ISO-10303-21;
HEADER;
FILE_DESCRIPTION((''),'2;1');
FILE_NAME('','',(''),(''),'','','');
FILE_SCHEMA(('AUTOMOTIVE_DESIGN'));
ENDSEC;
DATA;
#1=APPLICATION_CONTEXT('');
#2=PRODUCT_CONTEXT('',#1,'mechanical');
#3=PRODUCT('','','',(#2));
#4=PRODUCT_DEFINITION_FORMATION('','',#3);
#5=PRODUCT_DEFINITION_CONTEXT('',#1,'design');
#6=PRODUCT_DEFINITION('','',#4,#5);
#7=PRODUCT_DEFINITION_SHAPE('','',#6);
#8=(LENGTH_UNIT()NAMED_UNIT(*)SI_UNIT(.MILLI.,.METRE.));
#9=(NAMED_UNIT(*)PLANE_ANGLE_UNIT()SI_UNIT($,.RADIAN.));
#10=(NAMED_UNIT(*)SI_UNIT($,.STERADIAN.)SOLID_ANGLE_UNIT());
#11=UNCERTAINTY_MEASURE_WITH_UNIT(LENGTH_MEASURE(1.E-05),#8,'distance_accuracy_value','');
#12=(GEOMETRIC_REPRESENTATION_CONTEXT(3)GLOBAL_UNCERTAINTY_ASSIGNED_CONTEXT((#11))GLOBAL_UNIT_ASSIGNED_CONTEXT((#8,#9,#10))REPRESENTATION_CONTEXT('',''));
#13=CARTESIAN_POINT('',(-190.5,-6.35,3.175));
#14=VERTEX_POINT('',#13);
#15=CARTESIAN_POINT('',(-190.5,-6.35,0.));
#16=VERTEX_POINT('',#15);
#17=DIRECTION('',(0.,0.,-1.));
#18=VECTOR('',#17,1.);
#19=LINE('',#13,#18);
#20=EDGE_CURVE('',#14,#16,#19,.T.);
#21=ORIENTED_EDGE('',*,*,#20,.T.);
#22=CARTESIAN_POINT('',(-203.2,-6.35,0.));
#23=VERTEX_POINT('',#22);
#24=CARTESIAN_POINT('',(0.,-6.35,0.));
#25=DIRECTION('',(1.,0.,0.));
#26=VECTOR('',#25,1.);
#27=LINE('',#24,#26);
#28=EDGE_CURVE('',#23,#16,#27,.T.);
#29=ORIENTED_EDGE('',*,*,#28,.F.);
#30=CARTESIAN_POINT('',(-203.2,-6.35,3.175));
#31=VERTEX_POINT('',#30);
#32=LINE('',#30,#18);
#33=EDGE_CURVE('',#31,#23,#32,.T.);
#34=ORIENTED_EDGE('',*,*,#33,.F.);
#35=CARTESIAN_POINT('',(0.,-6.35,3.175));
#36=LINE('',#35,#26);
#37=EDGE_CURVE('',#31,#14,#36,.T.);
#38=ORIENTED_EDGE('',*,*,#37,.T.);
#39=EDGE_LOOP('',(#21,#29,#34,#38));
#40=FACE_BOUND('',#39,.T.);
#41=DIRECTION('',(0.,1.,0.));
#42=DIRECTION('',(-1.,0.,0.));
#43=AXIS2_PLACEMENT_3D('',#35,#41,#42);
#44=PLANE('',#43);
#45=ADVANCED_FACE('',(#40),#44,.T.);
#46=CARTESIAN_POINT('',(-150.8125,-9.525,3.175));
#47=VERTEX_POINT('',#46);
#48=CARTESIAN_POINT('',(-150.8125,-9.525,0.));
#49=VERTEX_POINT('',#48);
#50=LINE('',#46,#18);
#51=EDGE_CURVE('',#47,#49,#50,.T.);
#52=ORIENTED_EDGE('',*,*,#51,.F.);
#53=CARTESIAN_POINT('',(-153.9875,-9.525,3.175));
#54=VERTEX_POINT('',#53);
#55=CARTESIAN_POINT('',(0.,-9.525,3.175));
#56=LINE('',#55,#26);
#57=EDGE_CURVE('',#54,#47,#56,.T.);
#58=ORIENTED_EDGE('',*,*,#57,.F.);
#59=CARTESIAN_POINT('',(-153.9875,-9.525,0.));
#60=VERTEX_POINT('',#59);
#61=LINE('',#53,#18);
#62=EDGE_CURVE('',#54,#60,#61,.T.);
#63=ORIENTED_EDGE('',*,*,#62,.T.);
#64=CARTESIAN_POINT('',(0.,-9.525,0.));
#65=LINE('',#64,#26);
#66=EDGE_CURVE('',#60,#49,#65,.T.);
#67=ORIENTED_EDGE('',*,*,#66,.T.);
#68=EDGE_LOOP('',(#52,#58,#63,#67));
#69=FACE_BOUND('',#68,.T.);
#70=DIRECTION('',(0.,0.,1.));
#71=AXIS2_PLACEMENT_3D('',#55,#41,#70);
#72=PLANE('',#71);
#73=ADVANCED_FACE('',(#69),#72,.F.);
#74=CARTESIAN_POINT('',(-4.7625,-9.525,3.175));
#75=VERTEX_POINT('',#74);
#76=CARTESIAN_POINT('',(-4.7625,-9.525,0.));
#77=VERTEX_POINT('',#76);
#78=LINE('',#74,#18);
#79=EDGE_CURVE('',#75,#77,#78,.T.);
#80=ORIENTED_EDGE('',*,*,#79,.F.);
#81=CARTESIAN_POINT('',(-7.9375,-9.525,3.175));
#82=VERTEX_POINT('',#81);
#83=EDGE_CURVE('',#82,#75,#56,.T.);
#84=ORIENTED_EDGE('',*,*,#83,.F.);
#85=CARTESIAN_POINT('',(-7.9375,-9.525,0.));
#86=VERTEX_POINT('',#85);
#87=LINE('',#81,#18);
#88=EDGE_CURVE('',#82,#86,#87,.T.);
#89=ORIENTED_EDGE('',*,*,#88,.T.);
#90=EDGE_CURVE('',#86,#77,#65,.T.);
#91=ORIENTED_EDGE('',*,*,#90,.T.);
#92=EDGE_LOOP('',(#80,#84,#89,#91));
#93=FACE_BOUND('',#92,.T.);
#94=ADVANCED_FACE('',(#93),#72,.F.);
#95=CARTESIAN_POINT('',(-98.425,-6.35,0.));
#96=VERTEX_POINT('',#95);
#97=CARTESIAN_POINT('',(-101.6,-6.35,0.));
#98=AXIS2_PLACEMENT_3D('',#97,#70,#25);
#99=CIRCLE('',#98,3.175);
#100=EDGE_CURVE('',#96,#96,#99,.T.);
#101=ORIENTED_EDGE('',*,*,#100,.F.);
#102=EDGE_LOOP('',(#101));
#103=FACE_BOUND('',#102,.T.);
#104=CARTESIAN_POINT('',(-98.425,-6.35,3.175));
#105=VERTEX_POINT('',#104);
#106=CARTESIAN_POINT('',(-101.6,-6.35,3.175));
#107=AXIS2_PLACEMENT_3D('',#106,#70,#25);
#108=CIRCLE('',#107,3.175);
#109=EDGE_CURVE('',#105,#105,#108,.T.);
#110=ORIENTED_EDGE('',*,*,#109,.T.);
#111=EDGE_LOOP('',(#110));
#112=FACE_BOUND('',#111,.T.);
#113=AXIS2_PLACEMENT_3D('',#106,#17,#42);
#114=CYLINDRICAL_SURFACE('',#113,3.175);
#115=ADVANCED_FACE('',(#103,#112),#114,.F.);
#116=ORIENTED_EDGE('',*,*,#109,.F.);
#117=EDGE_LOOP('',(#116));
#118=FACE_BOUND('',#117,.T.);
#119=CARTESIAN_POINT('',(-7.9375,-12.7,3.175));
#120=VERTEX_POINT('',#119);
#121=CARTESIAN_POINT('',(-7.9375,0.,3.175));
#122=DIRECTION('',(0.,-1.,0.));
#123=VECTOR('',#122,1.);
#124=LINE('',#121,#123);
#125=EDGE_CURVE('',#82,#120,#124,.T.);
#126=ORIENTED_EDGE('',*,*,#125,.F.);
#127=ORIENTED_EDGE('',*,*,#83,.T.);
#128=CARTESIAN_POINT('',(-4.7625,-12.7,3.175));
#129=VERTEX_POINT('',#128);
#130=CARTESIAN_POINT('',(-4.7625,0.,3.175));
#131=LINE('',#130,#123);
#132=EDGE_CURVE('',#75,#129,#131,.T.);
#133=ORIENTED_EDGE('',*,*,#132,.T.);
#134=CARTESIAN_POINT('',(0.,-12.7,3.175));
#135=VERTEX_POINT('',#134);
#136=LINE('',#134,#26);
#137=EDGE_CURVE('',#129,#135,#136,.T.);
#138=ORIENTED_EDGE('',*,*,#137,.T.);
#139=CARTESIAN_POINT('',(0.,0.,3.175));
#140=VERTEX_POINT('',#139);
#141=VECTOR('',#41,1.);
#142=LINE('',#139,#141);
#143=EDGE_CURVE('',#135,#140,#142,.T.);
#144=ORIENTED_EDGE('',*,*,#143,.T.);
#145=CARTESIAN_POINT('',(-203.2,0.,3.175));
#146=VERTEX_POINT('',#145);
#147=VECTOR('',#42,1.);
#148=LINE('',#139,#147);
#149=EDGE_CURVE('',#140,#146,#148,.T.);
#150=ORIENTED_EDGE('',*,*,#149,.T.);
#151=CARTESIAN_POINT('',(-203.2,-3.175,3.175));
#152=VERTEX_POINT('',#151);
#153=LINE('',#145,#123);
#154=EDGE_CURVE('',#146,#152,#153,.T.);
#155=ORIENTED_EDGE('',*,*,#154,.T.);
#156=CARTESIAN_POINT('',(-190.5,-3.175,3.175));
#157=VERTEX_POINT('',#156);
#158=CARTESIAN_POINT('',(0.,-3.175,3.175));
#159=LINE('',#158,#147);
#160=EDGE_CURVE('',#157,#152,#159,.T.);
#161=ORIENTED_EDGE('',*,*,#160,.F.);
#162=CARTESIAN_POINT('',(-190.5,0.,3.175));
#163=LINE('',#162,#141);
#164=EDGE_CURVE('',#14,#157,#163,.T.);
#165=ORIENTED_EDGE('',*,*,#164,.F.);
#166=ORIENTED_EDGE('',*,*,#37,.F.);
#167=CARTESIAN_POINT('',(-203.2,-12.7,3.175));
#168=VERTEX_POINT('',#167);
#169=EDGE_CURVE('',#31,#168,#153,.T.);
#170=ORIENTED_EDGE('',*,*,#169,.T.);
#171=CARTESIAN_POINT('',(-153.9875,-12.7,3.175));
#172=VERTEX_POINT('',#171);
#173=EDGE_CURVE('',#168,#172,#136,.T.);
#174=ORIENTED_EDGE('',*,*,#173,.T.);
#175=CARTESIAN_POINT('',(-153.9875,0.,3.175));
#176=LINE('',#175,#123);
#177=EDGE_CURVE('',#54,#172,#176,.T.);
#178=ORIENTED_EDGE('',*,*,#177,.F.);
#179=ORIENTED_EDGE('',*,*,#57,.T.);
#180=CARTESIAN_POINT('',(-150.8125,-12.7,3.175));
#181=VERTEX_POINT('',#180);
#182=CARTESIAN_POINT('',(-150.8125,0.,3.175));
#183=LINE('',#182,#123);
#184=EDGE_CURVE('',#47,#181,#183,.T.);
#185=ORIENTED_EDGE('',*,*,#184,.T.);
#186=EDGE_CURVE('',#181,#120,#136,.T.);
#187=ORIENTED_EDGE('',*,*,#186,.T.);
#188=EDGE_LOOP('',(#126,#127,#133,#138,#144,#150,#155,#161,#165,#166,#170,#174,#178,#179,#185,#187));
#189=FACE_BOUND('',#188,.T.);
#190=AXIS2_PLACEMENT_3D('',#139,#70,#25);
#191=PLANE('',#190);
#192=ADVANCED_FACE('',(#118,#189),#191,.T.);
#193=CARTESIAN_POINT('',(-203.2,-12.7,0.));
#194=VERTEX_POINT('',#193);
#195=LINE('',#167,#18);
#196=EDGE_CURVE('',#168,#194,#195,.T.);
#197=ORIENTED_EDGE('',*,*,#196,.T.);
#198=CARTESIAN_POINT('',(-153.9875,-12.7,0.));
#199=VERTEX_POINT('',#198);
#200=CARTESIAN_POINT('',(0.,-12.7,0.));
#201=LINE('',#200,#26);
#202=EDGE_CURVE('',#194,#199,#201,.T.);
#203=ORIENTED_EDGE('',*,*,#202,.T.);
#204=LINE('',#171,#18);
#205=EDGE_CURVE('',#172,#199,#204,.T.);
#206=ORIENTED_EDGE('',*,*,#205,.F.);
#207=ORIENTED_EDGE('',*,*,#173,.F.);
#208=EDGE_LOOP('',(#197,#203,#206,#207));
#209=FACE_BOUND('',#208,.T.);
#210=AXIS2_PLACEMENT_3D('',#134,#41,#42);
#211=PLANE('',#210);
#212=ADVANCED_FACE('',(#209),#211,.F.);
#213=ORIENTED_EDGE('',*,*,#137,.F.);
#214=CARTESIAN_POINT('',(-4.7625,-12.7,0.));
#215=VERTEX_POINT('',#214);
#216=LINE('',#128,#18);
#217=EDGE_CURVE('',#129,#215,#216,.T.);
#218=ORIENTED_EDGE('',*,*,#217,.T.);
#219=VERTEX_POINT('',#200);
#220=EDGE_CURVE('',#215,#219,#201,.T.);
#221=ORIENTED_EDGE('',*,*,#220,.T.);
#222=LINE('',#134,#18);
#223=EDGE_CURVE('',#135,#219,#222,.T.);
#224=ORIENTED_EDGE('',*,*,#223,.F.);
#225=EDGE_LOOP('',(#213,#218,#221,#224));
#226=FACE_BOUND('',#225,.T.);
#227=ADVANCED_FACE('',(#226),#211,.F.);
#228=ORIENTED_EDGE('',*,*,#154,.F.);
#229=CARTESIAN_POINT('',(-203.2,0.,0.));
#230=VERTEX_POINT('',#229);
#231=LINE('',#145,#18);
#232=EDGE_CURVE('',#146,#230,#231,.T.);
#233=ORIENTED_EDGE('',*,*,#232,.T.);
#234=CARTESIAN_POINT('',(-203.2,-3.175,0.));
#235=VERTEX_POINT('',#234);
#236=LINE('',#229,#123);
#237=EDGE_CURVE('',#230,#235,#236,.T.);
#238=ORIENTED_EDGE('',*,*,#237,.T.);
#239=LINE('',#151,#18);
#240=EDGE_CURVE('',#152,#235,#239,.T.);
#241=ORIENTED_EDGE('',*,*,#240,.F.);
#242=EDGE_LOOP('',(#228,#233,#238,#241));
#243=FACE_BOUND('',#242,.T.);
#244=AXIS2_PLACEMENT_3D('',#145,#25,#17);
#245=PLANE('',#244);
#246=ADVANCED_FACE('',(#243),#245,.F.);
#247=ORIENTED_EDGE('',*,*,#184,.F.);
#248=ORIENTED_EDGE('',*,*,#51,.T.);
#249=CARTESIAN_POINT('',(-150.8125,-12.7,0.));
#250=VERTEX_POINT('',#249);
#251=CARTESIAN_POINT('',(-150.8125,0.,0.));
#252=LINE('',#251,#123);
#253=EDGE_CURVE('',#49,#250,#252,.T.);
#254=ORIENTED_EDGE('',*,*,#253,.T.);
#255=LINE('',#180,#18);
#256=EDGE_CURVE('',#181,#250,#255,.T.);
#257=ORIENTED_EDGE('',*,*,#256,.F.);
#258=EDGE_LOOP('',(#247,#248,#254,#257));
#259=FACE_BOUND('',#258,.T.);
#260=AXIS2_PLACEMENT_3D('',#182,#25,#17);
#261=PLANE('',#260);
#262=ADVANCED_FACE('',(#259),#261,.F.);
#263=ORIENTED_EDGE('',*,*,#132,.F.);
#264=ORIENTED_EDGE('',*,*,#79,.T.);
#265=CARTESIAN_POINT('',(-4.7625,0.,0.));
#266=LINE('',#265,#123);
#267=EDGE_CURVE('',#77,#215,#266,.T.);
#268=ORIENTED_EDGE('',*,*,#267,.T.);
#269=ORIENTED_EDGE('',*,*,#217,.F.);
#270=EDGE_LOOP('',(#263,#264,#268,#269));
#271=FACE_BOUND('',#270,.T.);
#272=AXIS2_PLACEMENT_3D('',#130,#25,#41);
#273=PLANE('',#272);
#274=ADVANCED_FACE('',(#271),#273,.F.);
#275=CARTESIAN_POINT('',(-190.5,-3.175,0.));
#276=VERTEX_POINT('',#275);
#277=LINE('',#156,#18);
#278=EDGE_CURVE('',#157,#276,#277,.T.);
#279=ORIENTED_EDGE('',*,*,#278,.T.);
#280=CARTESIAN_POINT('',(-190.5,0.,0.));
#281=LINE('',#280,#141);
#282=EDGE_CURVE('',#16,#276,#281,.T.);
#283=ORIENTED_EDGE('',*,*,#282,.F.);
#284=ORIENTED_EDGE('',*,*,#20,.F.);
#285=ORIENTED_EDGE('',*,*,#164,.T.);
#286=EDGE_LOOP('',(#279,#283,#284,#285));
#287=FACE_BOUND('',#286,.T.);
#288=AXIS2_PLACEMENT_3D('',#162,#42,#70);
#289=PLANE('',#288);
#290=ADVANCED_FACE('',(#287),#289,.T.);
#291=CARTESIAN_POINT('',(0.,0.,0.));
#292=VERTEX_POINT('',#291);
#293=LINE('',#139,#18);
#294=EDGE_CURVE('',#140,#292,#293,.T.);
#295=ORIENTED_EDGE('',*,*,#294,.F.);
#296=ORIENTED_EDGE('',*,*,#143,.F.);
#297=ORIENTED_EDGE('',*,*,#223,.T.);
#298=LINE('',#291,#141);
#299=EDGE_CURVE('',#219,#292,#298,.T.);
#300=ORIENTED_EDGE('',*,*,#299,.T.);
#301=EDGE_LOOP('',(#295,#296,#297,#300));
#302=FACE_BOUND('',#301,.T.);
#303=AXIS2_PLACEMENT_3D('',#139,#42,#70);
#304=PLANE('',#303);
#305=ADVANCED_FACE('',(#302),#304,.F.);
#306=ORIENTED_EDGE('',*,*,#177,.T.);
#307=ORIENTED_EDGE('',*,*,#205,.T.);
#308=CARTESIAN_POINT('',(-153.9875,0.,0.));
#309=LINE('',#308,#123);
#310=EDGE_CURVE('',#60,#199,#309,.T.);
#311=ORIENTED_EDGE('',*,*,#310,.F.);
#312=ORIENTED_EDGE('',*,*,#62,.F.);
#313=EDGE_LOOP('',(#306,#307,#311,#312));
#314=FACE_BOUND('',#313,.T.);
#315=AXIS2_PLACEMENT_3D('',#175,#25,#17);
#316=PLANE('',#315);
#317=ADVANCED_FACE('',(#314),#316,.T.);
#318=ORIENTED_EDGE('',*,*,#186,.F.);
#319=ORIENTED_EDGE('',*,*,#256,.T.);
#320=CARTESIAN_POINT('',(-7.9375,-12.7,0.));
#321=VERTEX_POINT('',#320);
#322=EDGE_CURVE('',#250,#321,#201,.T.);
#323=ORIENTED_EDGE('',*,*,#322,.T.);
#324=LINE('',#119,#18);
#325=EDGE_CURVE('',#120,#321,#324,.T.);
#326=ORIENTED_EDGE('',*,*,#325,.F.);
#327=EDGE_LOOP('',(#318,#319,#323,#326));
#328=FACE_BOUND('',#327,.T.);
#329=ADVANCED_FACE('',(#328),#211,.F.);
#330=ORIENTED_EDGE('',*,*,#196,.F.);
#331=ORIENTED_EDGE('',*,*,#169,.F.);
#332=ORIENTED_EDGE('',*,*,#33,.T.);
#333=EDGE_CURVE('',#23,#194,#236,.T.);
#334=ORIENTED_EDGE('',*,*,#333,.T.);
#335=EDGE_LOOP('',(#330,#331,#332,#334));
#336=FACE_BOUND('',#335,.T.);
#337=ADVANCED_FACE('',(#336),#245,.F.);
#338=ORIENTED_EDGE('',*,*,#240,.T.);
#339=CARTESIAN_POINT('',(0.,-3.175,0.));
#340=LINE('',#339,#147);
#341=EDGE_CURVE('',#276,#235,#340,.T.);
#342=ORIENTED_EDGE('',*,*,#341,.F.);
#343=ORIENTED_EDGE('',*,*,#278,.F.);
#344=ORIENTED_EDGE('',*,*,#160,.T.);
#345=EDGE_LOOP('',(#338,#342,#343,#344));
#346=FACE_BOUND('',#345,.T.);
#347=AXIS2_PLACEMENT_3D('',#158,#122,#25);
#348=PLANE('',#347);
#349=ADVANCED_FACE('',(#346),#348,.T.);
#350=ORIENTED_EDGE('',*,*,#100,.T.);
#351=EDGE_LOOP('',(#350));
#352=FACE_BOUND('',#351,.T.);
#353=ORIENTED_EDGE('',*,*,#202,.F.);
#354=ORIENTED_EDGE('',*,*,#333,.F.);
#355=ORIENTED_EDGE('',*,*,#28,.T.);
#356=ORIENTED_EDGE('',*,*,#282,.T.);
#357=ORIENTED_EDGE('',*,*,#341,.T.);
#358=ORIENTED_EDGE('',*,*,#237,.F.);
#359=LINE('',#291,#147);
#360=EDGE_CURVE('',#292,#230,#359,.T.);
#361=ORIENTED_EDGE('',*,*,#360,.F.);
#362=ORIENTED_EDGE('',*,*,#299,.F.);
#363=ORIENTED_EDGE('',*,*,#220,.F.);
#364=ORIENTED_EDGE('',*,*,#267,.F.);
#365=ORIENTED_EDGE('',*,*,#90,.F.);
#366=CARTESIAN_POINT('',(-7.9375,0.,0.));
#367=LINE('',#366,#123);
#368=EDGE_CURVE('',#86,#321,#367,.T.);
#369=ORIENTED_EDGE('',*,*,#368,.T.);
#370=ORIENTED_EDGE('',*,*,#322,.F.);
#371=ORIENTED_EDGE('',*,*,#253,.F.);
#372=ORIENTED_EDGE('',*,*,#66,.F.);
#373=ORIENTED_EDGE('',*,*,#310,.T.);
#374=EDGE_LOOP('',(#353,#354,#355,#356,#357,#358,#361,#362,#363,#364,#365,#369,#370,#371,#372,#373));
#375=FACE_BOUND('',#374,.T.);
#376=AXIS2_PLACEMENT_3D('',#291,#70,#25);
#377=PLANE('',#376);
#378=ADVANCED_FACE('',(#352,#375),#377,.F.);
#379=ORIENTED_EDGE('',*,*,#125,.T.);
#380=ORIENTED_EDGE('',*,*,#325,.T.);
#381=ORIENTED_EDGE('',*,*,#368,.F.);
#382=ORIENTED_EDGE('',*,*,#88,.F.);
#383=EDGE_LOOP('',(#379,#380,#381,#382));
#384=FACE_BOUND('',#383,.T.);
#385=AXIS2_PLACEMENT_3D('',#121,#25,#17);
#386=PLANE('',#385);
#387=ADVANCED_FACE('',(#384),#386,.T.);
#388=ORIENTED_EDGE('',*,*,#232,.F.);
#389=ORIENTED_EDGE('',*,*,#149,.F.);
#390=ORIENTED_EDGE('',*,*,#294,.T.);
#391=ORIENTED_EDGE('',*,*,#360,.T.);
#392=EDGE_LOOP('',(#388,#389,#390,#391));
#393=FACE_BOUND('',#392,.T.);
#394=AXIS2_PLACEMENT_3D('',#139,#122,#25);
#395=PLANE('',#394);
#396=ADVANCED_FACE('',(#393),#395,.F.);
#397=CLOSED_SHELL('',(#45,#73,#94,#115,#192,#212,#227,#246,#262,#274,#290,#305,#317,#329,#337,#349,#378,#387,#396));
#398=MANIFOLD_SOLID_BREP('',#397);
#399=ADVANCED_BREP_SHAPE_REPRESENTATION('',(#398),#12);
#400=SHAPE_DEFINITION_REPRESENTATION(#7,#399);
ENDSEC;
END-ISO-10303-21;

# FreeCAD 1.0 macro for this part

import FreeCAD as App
import Part
import Sketcher
from FreeCAD import Vector
Q = App.Units.Quantity


def add_polygon(sketch, points):
    """Adds a closed chain of lines whose ends are joined by coincident constraints."""
    first, n = sketch.GeometryCount, len(points)
    for a, b in zip(points, points[1:] + points[:1]):
        sketch.addGeometry(Part.LineSegment(App.Vector(*a, 0), App.Vector(*b, 0)), False)
    for i in range(n):
        sketch.addConstraint(Sketcher.Constraint("Coincident", first + i, 2, first + (i + 1) % n, 1))

doc = App.newDocument("Part")
body = doc.addObject("PartDesign::Body", "Body")

# Sketch on XY plane
sketch1 = body.newObject("Sketcher::SketchObject", "Sketch")
sketch1.AttachmentSupport = (doc.getObject("XY_Plane"), [""])
sketch1.MapMode = "FlatFace"
add_polygon(sketch1, [(0, -12.7), (0, 0), (-203.2, 0), (-203.2, -3.2), (-190.5, -3.2), (-190.5, -6.3), (-203.2, -6.3), (-203.2, -12.7), (-154, -12.7), (-154, -9.5), (-150.8, -9.5), (-150.8, -12.7), (-7.9, -12.7), (-7.9, -9.5), (-4.8, -9.5), (-4.8, -12.7)])  # lines 0-15
sketch1.addGeometry(Part.Circle(Vector(-101.6, -6.3, 0), Vector(0, 0, 1), 3.2), False)  # 16
sketch1.addConstraint([
    Sketcher.Constraint("Vertical", 0),
    Sketcher.Constraint("Horizontal", 1),
    Sketcher.Constraint("Vertical", 2),
    Sketcher.Constraint("Horizontal", 3),
    Sketcher.Constraint("Vertical", 4),
    Sketcher.Constraint("Horizontal", 5),
    Sketcher.Constraint("Vertical", 6),
    Sketcher.Constraint("Horizontal", 7),
    Sketcher.Constraint("Vertical", 8),
    Sketcher.Constraint("Horizontal", 9),
    Sketcher.Constraint("Vertical", 10),
    Sketcher.Constraint("Horizontal", 11),
    Sketcher.Constraint("Vertical", 12),
    Sketcher.Constraint("Horizontal", 13),
    Sketcher.Constraint("Vertical", 14),
    Sketcher.Constraint("Horizontal", 15),
    Sketcher.Constraint("Coincident", 0, 2, -1, 1),
    Sketcher.Constraint("Horizontal", 16, 3, 4, 2),
    Sketcher.Constraint("Horizontal", 7, 2, 10, 2),
    Sketcher.Constraint("Horizontal", 9, 2, 12, 2),
    Sketcher.Constraint("Horizontal", 11, 2, 14, 2),
    Sketcher.Constraint("Vertical", 2, 2, 5, 2),
    Sketcher.Constraint("Equal", 9, 13),
    Sketcher.Constraint("Equal", 5, 0),
    Sketcher.Constraint("Equal", 13, 2),
    Sketcher.Constraint("Equal", 2, 4),
    Sketcher.Constraint("Equal", 4, 8),
    Sketcher.Constraint("Diameter", 16, Q("0.25 in")),
    Sketcher.Constraint("DistanceX", 1, 2, 1, 1, Q("8 in")),
    Sketcher.Constraint("DistanceX", 3, 1, 3, 2, Q("0.5 in")),
    Sketcher.Constraint("DistanceX", 16, 3, -1, 1, Q("4 in")),
    Sketcher.Constraint("DistanceY", 6, 2, 6, 1, Q("0.25 in")),
    Sketcher.Constraint("DistanceX", 7, 1, 7, 2, Q("1.9375 in")),
    Sketcher.Constraint("DistanceX", 11, 1, 11, 2, Q("5.625 in")),
])
pad1 = body.newObject("PartDesign::Pad", "Pad")
pad1.Profile = sketch1
pad1.Length = Q("0.125 in")

doc.recompute()
